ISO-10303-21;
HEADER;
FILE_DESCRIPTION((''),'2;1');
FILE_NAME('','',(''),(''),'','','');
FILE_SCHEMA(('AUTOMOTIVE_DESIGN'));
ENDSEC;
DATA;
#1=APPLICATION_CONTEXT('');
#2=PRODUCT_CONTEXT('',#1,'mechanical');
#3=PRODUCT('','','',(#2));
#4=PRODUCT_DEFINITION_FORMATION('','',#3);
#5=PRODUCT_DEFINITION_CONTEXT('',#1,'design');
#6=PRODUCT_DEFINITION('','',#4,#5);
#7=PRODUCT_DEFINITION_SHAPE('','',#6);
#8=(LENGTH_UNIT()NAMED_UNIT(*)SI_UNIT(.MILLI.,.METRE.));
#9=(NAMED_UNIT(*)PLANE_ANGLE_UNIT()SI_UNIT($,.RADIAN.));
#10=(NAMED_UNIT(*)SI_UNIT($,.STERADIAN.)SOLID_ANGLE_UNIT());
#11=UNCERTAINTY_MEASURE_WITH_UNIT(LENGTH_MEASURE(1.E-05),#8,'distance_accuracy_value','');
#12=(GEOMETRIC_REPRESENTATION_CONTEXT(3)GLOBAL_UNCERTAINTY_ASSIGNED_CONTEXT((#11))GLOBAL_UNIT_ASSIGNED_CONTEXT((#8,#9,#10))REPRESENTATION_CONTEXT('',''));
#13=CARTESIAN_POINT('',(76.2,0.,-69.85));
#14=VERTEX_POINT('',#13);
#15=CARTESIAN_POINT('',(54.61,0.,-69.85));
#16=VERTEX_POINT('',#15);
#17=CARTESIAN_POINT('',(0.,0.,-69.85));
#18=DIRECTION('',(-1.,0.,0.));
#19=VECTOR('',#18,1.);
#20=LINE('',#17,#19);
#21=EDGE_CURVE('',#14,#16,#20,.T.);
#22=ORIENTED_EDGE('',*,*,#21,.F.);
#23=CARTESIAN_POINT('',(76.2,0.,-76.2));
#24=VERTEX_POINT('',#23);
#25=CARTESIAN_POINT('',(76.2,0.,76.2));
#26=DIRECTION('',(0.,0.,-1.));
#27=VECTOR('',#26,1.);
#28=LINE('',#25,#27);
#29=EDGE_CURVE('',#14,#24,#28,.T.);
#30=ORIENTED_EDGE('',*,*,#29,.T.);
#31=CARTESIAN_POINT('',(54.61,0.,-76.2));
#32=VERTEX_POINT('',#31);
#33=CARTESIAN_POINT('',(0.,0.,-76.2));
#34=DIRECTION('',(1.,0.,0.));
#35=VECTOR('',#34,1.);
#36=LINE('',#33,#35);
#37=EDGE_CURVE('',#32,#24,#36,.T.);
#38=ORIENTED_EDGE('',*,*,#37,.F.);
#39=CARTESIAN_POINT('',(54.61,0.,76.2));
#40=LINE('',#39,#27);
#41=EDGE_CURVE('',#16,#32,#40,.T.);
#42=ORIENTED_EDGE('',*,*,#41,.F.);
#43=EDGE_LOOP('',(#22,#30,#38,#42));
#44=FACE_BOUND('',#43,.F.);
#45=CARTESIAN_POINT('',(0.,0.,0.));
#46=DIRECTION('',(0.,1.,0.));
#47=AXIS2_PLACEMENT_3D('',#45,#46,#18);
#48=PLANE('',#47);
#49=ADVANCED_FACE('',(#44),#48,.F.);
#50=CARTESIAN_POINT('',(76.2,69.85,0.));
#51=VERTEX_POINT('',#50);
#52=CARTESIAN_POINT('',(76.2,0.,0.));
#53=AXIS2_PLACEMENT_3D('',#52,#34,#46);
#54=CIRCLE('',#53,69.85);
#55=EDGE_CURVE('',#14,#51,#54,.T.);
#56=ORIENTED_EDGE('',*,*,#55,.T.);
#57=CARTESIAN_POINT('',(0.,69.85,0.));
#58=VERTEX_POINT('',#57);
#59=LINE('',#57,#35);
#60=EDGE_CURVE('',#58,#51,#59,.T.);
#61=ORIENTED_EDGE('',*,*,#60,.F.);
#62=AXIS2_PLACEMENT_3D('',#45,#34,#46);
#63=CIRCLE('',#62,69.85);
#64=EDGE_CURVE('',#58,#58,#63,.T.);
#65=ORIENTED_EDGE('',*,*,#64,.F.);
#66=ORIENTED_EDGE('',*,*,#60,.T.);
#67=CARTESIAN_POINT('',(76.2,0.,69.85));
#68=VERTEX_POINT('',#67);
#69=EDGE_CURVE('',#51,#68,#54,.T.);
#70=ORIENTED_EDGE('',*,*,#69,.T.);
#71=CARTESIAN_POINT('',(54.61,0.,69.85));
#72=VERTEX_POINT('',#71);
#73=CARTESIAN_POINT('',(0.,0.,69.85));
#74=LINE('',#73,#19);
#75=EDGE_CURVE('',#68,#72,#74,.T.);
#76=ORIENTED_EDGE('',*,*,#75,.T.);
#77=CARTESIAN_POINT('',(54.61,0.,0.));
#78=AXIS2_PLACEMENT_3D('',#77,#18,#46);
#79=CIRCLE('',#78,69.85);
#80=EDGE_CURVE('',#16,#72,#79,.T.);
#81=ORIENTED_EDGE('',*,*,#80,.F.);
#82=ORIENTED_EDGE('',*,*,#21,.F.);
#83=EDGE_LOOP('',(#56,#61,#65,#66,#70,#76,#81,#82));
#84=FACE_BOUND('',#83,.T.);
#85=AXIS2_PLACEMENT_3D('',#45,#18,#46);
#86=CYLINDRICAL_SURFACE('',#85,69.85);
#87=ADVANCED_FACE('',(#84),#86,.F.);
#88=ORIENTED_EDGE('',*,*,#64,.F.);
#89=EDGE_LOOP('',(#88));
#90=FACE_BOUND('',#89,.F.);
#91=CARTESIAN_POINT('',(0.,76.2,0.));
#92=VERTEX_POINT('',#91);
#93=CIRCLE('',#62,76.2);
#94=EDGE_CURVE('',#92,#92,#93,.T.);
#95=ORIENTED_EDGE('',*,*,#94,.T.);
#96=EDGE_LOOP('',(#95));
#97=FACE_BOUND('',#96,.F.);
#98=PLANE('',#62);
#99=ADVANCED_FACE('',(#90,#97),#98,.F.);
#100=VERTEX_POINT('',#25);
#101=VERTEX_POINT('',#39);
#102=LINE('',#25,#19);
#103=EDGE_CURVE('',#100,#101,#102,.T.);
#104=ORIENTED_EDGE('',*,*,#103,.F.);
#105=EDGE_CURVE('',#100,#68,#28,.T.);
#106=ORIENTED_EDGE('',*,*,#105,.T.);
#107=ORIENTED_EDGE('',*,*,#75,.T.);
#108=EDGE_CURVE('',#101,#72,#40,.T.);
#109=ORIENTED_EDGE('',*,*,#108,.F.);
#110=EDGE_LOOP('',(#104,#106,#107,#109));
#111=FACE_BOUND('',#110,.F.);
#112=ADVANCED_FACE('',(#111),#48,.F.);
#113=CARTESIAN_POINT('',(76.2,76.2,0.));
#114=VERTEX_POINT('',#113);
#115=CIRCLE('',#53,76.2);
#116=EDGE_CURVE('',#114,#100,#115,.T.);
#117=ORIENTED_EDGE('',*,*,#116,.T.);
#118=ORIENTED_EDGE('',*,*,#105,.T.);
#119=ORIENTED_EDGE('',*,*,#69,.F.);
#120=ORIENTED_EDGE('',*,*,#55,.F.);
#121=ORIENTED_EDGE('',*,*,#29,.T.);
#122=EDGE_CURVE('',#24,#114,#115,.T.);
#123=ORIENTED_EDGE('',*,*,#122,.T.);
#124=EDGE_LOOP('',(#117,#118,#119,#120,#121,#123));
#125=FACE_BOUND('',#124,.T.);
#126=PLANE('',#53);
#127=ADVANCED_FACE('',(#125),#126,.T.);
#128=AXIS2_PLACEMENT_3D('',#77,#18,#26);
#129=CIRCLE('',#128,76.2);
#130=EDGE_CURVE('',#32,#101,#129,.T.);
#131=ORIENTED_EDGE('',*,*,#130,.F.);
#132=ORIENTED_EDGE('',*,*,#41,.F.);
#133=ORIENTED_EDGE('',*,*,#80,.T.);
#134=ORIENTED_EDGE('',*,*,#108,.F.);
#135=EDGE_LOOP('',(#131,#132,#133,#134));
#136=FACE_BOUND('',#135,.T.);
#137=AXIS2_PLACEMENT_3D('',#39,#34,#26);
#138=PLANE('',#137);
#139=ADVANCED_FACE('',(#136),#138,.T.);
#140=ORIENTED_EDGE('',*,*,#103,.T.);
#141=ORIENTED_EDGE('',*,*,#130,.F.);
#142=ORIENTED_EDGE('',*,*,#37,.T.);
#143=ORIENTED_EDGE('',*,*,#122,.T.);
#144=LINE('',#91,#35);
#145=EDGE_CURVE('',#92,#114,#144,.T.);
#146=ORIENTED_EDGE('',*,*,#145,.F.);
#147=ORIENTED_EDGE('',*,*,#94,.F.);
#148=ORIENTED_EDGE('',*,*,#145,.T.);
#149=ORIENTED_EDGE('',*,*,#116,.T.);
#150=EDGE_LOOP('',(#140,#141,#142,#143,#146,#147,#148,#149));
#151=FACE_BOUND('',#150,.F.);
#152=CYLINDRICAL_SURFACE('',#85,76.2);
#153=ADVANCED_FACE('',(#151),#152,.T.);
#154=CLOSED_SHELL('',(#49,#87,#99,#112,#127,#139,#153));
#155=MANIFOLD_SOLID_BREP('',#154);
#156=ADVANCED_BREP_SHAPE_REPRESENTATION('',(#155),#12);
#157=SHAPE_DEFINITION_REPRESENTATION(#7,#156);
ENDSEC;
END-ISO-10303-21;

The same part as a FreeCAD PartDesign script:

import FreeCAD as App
import Part
import Sketcher
Q = App.Units.Quantity


def add_polygon(sketch, points):
    """Adds a closed chain of lines whose ends are joined by coincident constraints."""
    first, n = sketch.GeometryCount, len(points)
    for a, b in zip(points, points[1:] + points[:1]):
        sketch.addGeometry(Part.LineSegment(App.Vector(*a, 0), App.Vector(*b, 0)), False)
    for i in range(n):
        sketch.addConstraint(Sketcher.Constraint("Coincident", first + i, 2, first + (i + 1) % n, 1))

doc = App.newDocument("Part")
body = doc.addObject("PartDesign::Body", "Body")

# Sketch on YZ plane
sketch1 = doc.addObject("Sketcher::SketchObject", "Sketch")
body.addObject(sketch1)
sketch1.AttachmentSupport = (doc.YZ_Plane, [""])
sketch1.MapMode = "FlatFace"
sketch1.addGeometry([
    Part.Circle(App.Vector(0, 0, 0), App.Vector(0, 0, 1), 76),
    Part.Circle(App.Vector(0, 0, 0), App.Vector(0, 0, 1), 70),
], False)
sketch1.addConstraint([
    Sketcher.Constraint("Coincident", 0, 3, -1, 1),
    Sketcher.Constraint("Coincident", 1, 3, -1, 1),
    Sketcher.Constraint("Diameter", 0, Q("6 in")),
    Sketcher.Constraint("Diameter", 1, Q("5.5 in")),
])
pad1 = doc.addObject("PartDesign::Pad", "Pad")
body.addObject(pad1)
pad1.Profile = sketch1
pad1.Length = Q("3 in")

# Sketch on XZ plane
sketch2 = doc.addObject("Sketcher::SketchObject", "Sketch001")
body.addObject(sketch2)
sketch2.AttachmentSupport = (doc.XZ_Plane, [""])
sketch2.MapMode = "FlatFace"
add_polygon(sketch2, [(55, 76), (76, 76), (76, -76), (55, -76)])  # lines 0-3
sketch2.addConstraint([
    Sketcher.Constraint("Horizontal", 0),
    Sketcher.Constraint("Vertical", 1),
    Sketcher.Constraint("Horizontal", 2),
    Sketcher.Constraint("Vertical", 3),
    Sketcher.Constraint("DistanceX", 0, 1, 0, 2, Q("0.85 in")),
    Sketcher.Constraint("DistanceY", 1, 2, 1, 1, Q("6 in")),
    Sketcher.Constraint("DistanceX", -1, 1, 0, 2, Q("3 in")),
    Sketcher.Constraint("DistanceY", -1, 1, 0, 2, Q("3 in")),
])
pocket1 = doc.addObject("PartDesign::Pocket", "Pocket")
body.addObject(pocket1)
pocket1.Profile = sketch2
pocket1.Length = Q("3 in")
pocket1.Reversed = True

doc.recompute()
